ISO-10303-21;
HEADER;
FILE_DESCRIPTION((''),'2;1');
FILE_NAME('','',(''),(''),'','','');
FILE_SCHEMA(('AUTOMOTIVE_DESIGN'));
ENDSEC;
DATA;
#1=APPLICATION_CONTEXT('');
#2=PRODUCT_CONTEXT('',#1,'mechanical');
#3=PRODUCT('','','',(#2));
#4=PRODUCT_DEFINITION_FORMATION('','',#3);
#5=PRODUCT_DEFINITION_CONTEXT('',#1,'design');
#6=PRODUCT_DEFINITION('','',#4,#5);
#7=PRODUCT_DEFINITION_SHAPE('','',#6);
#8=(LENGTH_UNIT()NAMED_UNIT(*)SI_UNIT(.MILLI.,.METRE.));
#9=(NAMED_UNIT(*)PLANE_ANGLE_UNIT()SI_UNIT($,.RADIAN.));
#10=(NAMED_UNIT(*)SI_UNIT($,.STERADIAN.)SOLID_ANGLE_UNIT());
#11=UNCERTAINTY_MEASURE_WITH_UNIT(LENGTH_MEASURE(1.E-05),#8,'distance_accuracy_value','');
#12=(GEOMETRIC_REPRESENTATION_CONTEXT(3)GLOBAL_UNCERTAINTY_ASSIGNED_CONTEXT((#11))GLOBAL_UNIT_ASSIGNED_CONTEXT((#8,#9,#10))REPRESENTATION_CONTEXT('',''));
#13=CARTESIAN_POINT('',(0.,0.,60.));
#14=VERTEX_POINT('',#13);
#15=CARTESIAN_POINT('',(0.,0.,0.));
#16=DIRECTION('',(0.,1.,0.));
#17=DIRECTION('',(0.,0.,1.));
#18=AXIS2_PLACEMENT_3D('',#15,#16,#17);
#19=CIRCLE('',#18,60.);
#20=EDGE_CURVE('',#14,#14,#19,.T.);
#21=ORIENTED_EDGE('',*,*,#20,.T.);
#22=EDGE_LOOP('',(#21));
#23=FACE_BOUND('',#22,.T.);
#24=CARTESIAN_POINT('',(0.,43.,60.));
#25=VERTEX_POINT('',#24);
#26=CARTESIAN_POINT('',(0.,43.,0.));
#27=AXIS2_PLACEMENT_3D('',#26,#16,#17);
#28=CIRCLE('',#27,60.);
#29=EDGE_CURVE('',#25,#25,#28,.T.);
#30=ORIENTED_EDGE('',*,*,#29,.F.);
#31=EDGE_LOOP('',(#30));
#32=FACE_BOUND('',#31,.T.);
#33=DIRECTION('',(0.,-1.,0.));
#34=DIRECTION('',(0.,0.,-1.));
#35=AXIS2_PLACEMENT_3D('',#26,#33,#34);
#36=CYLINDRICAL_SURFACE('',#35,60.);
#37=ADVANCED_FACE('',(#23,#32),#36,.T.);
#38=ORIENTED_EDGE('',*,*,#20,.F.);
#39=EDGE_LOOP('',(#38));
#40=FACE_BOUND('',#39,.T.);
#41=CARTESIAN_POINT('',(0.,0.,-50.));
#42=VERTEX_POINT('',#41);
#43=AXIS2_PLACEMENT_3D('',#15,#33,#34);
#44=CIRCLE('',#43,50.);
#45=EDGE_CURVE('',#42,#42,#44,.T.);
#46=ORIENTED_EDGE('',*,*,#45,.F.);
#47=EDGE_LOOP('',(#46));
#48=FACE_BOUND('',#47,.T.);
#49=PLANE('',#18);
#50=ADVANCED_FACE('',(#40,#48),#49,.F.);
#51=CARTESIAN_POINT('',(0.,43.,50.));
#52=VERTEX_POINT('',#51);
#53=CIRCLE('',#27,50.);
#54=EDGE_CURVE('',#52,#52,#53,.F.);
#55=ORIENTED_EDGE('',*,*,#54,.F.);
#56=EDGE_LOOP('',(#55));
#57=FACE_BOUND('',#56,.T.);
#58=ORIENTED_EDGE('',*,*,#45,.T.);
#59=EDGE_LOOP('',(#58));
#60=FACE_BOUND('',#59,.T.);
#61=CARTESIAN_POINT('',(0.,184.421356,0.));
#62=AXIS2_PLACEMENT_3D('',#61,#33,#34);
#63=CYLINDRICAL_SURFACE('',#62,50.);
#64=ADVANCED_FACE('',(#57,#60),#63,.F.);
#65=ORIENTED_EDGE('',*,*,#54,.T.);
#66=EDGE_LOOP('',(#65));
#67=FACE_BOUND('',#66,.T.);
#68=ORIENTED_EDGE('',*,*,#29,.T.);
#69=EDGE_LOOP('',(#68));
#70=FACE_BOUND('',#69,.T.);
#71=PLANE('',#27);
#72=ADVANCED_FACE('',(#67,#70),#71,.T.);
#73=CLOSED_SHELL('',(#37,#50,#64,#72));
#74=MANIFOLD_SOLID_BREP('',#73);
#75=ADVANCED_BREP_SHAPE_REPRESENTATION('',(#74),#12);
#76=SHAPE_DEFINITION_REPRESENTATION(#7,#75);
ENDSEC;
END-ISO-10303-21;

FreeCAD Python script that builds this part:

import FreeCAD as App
import Part
import Sketcher

V = App.Vector

doc = App.newDocument("Part")
body = doc.addObject("PartDesign::Body", "Body")

sketch1 = body.newObject("Sketcher::SketchObject", "Sketch")
sketch1.AttachmentSupport = (doc.getObject("XZ_Plane"), [""])
sketch1.MapMode = "FlatFace"
sketch1.addGeometry(Part.Circle(V(0, 0, 0), V(0, 0, 1), 60), False)
sketch1.addConstraint(Sketcher.Constraint("Coincident", 0, 3, -1, 1))
sketch1.addConstraint(Sketcher.Constraint("Diameter", 0, 120.0))
pad1 = body.newObject("PartDesign::Pad", "Pad")
pad1.Profile = sketch1
pad1.Length = 43
pad1.Reversed = True

sketch2 = body.newObject("Sketcher::SketchObject", "Sketch001")
sketch2.AttachmentSupport = (doc.getObject("XZ_Plane"), [""])
sketch2.MapMode = "FlatFace"
sketch2.addGeometry(Part.Circle(V(0, 0, 0), V(0, 0, 1), 50), False)
sketch2.addConstraint(Sketcher.Constraint("Coincident", 0, 3, -1, 1))
sketch2.addConstraint(Sketcher.Constraint("Diameter", 0, 100.0))
pocket1 = body.newObject("PartDesign::Pocket", "Pocket")
pocket1.Profile = sketch2
pocket1.Length = 43

doc.recompute()
